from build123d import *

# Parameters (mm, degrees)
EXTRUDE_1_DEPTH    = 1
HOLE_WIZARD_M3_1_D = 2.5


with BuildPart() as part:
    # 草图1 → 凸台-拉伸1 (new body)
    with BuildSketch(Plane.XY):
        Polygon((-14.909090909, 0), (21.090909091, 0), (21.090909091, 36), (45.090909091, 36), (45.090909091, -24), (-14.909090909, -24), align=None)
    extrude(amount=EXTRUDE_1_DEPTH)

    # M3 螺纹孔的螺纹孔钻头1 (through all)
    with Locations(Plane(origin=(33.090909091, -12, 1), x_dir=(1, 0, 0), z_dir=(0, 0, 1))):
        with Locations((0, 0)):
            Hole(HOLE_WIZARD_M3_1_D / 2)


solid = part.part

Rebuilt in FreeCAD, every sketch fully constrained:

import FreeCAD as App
import Part
import Sketcher
from FreeCAD import Vector
Q = App.Units.Quantity


def add_polygon(sketch, points):
    """Adds a closed chain of lines whose ends are joined by coincident constraints."""
    first, n = sketch.GeometryCount, len(points)
    for a, b in zip(points, points[1:] + points[:1]):
        sketch.addGeometry(Part.LineSegment(App.Vector(*a, 0), App.Vector(*b, 0)), False)
    for i in range(n):
        sketch.addConstraint(Sketcher.Constraint("Coincident", first + i, 2, first + (i + 1) % n, 1))

doc = App.newDocument("Part")
body = doc.addObject("PartDesign::Body", "Body")

# Sketch on XY plane
sketch1 = body.newObject("Sketcher::SketchObject", "Sketch")
sketch1.AttachmentSupport = (doc.getObject("XY_Plane"), [""])
sketch1.MapMode = "FlatFace"
add_polygon(sketch1, [(21, 0), (-15, 0), (-15, -24), (45, -24), (45, 36), (21, 36)])  # lines 0-5
sketch1.addConstraint(Sketcher.Constraint("Horizontal", 0))
sketch1.addConstraint(Sketcher.Constraint("Vertical", 1))
sketch1.addConstraint(Sketcher.Constraint("Horizontal", 2))
sketch1.addConstraint(Sketcher.Constraint("Vertical", 3))
sketch1.addConstraint(Sketcher.Constraint("Horizontal", 4))
sketch1.addConstraint(Sketcher.Constraint("Vertical", 5))
sketch1.addConstraint(Sketcher.Constraint("PointOnObject", 0, 2, -1))
sketch1.addConstraint(Sketcher.Constraint("Equal", 4, 1))
sketch1.addConstraint(Sketcher.Constraint("Equal", 2, 3))
sketch1.addConstraint(Sketcher.Constraint("DistanceX", 0, 2, 0, 1, Q("36 mm")))
sketch1.addConstraint(Sketcher.Constraint("DistanceX", 2, 1, 2, 2, Q("60 mm")))
sketch1.addConstraint(Sketcher.Constraint("DistanceX", 0, 2, -1, 1, Q("14.909091 mm")))
pad1 = body.newObject("PartDesign::Pad", "Pad")
pad1.Profile = sketch1
pad1.Length = 1

# Sketch on XY plane
sketch2 = body.newObject("Sketcher::SketchObject", "Sketch001")
sketch2.AttachmentSupport = (doc.getObject("XY_Plane"), [""])
sketch2.MapMode = "FlatFace"
sketch2.AttachmentOffset = App.Placement(Vector(0, 0, 1), App.Rotation())
sketch2.addGeometry(Part.Circle(Vector(33.1, -12, 0), Vector(0, 0, 1), 1.2), False)
sketch2.addConstraint(Sketcher.Constraint("Diameter", 0, Q("2.5 mm")))
sketch2.addConstraint(Sketcher.Constraint("DistanceY", 0, 3, -1, 1, Q("12 mm")))
sketch2.addConstraint(Sketcher.Constraint("DistanceX", -1, 1, 0, 3, Q("33.090909 mm")))
doc.recompute()
hole = body.newObject("PartDesign::Hole", "Hole")
hole.Profile = sketch2
hole.ThreadType = "None"
hole.Diameter = 2.5
hole.DepthType = "ThroughAll"

doc.recompute()
